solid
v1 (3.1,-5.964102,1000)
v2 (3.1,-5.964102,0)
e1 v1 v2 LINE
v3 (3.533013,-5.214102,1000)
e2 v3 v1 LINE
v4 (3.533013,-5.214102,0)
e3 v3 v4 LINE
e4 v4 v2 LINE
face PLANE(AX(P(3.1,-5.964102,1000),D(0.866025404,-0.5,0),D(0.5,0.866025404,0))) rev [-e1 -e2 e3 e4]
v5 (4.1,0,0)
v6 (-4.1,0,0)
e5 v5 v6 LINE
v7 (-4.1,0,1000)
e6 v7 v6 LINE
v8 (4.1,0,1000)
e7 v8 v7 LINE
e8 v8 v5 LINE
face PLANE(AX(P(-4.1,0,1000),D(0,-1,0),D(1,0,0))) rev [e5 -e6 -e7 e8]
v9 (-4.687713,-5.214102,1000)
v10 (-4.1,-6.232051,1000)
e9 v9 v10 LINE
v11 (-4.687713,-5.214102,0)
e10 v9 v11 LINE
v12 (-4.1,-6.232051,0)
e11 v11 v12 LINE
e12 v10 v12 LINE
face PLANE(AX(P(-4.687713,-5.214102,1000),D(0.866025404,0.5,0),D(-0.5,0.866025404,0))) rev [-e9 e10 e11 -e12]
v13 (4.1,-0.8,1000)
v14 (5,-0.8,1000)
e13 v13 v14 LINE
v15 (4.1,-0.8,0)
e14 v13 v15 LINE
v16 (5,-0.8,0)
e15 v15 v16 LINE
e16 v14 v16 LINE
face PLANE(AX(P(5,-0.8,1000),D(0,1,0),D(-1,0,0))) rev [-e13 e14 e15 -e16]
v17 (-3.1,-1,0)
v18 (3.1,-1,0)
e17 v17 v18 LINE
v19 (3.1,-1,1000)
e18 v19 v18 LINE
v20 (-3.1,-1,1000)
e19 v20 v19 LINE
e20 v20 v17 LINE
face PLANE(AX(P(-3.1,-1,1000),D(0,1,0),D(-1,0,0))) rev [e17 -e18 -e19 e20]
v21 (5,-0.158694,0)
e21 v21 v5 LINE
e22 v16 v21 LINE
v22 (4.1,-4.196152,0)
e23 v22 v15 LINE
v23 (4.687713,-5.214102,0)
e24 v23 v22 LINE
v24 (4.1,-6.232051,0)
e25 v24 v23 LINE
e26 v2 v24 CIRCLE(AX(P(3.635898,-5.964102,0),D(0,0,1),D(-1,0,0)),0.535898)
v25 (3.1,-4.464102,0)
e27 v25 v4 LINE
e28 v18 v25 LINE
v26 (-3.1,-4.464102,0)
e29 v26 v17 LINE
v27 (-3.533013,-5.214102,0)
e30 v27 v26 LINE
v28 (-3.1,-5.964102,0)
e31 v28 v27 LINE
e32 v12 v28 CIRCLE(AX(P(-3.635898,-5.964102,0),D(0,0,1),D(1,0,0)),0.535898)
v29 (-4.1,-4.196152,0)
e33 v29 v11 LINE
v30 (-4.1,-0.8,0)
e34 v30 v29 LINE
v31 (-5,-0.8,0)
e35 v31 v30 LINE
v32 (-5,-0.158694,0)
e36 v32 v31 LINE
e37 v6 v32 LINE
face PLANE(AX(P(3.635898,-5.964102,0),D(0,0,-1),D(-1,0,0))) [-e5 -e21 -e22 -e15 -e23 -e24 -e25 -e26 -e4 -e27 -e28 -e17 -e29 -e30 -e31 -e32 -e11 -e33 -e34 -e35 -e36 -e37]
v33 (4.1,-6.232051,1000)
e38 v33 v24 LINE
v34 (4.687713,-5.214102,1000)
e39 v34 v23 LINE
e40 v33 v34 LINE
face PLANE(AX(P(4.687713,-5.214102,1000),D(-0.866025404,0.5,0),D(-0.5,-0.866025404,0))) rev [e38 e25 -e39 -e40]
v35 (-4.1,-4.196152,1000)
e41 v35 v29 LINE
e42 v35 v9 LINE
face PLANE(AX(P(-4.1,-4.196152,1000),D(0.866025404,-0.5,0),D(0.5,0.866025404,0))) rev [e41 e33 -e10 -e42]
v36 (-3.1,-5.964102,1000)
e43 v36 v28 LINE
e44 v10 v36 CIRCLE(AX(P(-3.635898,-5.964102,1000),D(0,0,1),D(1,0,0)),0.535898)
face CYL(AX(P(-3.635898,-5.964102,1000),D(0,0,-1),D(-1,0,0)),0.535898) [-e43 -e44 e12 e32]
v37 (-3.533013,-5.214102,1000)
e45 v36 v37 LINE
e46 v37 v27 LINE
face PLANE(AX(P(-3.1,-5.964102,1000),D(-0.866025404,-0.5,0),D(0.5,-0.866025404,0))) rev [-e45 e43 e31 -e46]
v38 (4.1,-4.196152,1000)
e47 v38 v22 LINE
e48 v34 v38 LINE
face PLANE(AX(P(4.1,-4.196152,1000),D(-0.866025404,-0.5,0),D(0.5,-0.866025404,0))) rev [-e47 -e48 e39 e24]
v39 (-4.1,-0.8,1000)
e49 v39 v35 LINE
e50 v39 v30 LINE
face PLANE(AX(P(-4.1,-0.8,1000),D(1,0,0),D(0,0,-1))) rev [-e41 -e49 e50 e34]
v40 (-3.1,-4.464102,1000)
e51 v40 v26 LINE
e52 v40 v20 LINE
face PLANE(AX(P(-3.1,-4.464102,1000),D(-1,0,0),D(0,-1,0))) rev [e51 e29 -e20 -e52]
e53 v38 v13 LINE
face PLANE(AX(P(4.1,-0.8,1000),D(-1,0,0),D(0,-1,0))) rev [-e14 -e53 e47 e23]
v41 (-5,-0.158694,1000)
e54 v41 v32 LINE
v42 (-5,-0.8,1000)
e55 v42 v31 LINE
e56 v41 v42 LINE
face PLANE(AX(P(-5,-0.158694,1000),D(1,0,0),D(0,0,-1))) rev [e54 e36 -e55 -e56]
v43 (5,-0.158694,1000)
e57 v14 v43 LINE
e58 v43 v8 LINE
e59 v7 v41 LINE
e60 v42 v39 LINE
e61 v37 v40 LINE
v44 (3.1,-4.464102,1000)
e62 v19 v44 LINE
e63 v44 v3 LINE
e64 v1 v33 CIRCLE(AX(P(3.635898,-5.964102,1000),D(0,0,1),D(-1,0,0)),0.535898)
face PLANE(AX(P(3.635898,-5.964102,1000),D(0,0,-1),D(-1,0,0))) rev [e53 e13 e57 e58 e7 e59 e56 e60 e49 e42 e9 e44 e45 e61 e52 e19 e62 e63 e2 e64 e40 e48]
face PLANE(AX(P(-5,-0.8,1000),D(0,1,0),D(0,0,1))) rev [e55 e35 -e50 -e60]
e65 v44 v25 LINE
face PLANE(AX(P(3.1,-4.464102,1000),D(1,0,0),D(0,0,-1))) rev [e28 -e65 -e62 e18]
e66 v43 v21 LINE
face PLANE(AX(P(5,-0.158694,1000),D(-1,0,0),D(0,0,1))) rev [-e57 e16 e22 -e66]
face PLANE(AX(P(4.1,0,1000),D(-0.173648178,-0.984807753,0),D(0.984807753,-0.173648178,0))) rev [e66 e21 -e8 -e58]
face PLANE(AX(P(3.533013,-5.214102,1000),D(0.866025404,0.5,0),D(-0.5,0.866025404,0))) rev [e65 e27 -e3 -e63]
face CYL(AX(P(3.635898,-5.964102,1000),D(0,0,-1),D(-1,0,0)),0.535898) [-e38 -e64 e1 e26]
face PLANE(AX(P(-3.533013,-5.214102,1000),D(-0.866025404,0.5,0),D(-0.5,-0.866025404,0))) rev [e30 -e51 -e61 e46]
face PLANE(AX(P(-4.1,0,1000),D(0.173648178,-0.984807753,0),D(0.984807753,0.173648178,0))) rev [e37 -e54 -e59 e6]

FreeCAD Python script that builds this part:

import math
import FreeCAD as App
import Part
import Sketcher
Q = App.Units.Quantity

doc = App.newDocument("Part")
body = doc.addObject("PartDesign::Body", "Body")

# Sketch on XY plane
sketch1 = body.newObject("Sketcher::SketchObject", "Sketch")
sketch1.AttachmentSupport = (doc.getObject("XY_Plane"), [""])
sketch1.MapMode = "FlatFace"
sketch1.addGeometry([
    Part.LineSegment(App.Vector(-4.1, 0, 0), App.Vector(-5, -0.2, 0)),  # 0
    Part.LineSegment(App.Vector(-5, -0.2, 0), App.Vector(-5, -0.8, 0)),  # 1
    Part.LineSegment(App.Vector(-5, -0.8, 0), App.Vector(-4.1, -0.8, 0)),  # 2
    Part.LineSegment(App.Vector(-4.1, -0.8, 0), App.Vector(-4.1, -4.2, 0)),  # 3
    Part.LineSegment(App.Vector(-4.1, -4.2, 0), App.Vector(-4.7, -5.2, 0)),  # 4
    Part.LineSegment(App.Vector(-4.7, -5.2, 0), App.Vector(-4.1, -6.2, 0)),  # 5
    Part.ArcOfCircle(Part.Circle(App.Vector(-3.6, -6, 0), App.Vector(0, 0, 1), 0.5), math.radians(-150), math.radians(0)),  # 6
    Part.LineSegment(App.Vector(-3.1, -6, 0), App.Vector(-3.5, -5.2, 0)),  # 7
    Part.LineSegment(App.Vector(-3.5, -5.2, 0), App.Vector(-3.1, -4.5, 0)),  # 8
    Part.LineSegment(App.Vector(-3.1, -4.5, 0), App.Vector(-3.1, -1, 0)),  # 9
    Part.LineSegment(App.Vector(-3.1, -1, 0), App.Vector(3.1, -1, 0)),  # 10
    Part.LineSegment(App.Vector(3.1, -1, 0), App.Vector(3.1, -4.5, 0)),  # 11
    Part.LineSegment(App.Vector(3.1, -4.5, 0), App.Vector(3.5, -5.2, 0)),  # 12
    Part.LineSegment(App.Vector(3.5, -5.2, 0), App.Vector(3.1, -6, 0)),  # 13
    Part.ArcOfCircle(Part.Circle(App.Vector(3.6, -6, 0), App.Vector(0, 0, 1), 0.5), math.radians(-180), math.radians(-30)),  # 14
    Part.LineSegment(App.Vector(4.1, -6.2, 0), App.Vector(4.7, -5.2, 0)),  # 15
    Part.LineSegment(App.Vector(4.7, -5.2, 0), App.Vector(4.1, -4.2, 0)),  # 16
    Part.LineSegment(App.Vector(4.1, -4.2, 0), App.Vector(4.1, -0.8, 0)),  # 17
    Part.LineSegment(App.Vector(4.1, -0.8, 0), App.Vector(5, -0.8, 0)),  # 18
    Part.LineSegment(App.Vector(5, -0.8, 0), App.Vector(5, -0.2, 0)),  # 19
    Part.LineSegment(App.Vector(5, -0.2, 0), App.Vector(4.1, 0, 0)),  # 20
    Part.LineSegment(App.Vector(4.1, 0, 0), App.Vector(-4.1, 0, 0)),  # 21
], False)
sketch1.addConstraint([
    Sketcher.Constraint("Coincident", 0, 2, 1, 1),
    Sketcher.Constraint("Coincident", 1, 2, 2, 1),
    Sketcher.Constraint("Coincident", 2, 2, 3, 1),
    Sketcher.Constraint("Coincident", 3, 2, 4, 1),
    Sketcher.Constraint("Coincident", 4, 2, 5, 1),
    Sketcher.Constraint("Tangent", 5, 2, 6, 1),
    Sketcher.Constraint("Coincident", 6, 2, 7, 1),
    Sketcher.Constraint("Coincident", 7, 2, 8, 1),
    Sketcher.Constraint("Coincident", 8, 2, 9, 1),
    Sketcher.Constraint("Coincident", 9, 2, 10, 1),
    Sketcher.Constraint("Coincident", 10, 2, 11, 1),
    Sketcher.Constraint("Coincident", 11, 2, 12, 1),
    Sketcher.Constraint("Coincident", 12, 2, 13, 1),
    Sketcher.Constraint("Coincident", 13, 2, 14, 1),
    Sketcher.Constraint("Tangent", 14, 2, 15, 1),
    Sketcher.Constraint("Coincident", 15, 2, 16, 1),
    Sketcher.Constraint("Coincident", 16, 2, 17, 1),
    Sketcher.Constraint("Coincident", 17, 2, 18, 1),
    Sketcher.Constraint("Coincident", 18, 2, 19, 1),
    Sketcher.Constraint("Coincident", 19, 2, 20, 1),
    Sketcher.Constraint("Coincident", 20, 2, 21, 1),
    Sketcher.Constraint("Coincident", 21, 2, 0, 1),
    Sketcher.Constraint("Vertical", 1),
    Sketcher.Constraint("Horizontal", 2),
    Sketcher.Constraint("Vertical", 3),
    Sketcher.Constraint("Vertical", 9),
    Sketcher.Constraint("Horizontal", 10),
    Sketcher.Constraint("Vertical", 11),
    Sketcher.Constraint("Vertical", 17),
    Sketcher.Constraint("Horizontal", 18),
    Sketcher.Constraint("Vertical", 19),
    Sketcher.Constraint("Horizontal", 21),
    Sketcher.Constraint("Equal", 6, 14),
    Sketcher.Constraint("Symmetric", 20, 2, 21, 2, -1, 1),
    Sketcher.Constraint("Symmetric", 6, 3, 14, 3, -2),
    Sketcher.Constraint("Symmetric", 8, 2, 11, 2, -2),
    Sketcher.Constraint("Symmetric", 7, 2, 12, 2, -2),
    Sketcher.Constraint("Symmetric", 4, 2, 15, 2, -2),
    Sketcher.Constraint("Symmetric", 3, 2, 16, 2, -2),
    Sketcher.Constraint("Symmetric", 1, 2, 18, 2, -2),
    Sketcher.Constraint("Parallel", 5, 7),
    Sketcher.Constraint("Parallel", 4, 8),
    Sketcher.Constraint("Parallel", 7, 12),
    Sketcher.Constraint("Parallel", 8, 13),
    Sketcher.Constraint("Horizontal", 14, 3, 6, 2),
    Sketcher.Constraint("Horizontal", 4, 2, 7, 2),
    Sketcher.Constraint("Horizontal", 0, 2, 19, 2),
    Sketcher.Constraint("Vertical", 3, 2, 5, 2),
    Sketcher.Constraint("Vertical", 6, 2, 8, 2),
    Sketcher.Constraint("Vertical", 17, 2, 20, 2),
    Sketcher.Constraint("Angle", 0, Q("-170 deg")),
    Sketcher.Constraint("Angle", 4, Q("-120 deg")),
    Sketcher.Constraint("DistanceX", 2, 1, 2, 2, Q("0.9 mm")),
    Sketcher.Constraint("DistanceX", 10, 1, 10, 2, Q("6.2 mm")),
    Sketcher.Constraint("DistanceX", 21, 2, 21, 1, Q("8.2 mm")),
    Sketcher.Constraint("DistanceY", 9, 2, -1, 1, Q("1 mm")),
    Sketcher.Constraint("DistanceY", 1, 2, -1, 1, Q("0.8 mm")),
    Sketcher.Constraint("DistanceY", 6, 2, 8, 2, Q("1.5 mm")),
    Sketcher.Constraint("DistanceY", 9, 1, 9, 2, Q("3.464102 mm")),
])
pad1 = body.newObject("PartDesign::Pad", "Pad")
pad1.Profile = sketch1
pad1.Length = 1000

doc.recompute()
